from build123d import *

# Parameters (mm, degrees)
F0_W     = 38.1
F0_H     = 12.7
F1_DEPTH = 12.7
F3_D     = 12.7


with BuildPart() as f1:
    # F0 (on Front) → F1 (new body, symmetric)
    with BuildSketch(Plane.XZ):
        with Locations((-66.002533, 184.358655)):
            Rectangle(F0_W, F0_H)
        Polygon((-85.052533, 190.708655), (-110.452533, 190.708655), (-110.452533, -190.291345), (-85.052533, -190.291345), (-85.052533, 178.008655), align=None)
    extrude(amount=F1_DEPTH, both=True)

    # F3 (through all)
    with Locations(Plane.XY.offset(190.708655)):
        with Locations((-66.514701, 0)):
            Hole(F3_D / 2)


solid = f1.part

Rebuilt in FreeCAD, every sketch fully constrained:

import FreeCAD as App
import Part
import Sketcher
Q = App.Units.Quantity

doc = App.newDocument("Part")
body = doc.addObject("PartDesign::Body", "Body")

# Sketch on XZ plane
sketch1 = body.newObject("Sketcher::SketchObject", "Sketch")
sketch1.AttachmentSupport = (doc.getObject("XZ_Plane"), [""])
sketch1.MapMode = "FlatFace"
sketch1.addGeometry(Part.LineSegment(App.Vector(-85.052533, 178.008655, 0), App.Vector(-46.952533, 178.008655, 0)), False)
sketch1.addGeometry(Part.LineSegment(App.Vector(-46.952533, 178.008655, 0), App.Vector(-46.952533, 190.708655, 0)), False)
sketch1.addGeometry(Part.LineSegment(App.Vector(-46.952533, 190.708655, 0), App.Vector(-110.452533, 190.708655, 0)), False)
sketch1.addGeometry(Part.LineSegment(App.Vector(-110.452533, 190.708655, 0), App.Vector(-110.452533, -190.291345, 0)), False)
sketch1.addGeometry(Part.LineSegment(App.Vector(-110.452533, -190.291345, 0), App.Vector(-85.052533, -190.291345, 0)), False)
sketch1.addGeometry(Part.LineSegment(App.Vector(-85.052533, -190.291345, 0), App.Vector(-85.052533, 178.008655, 0)), False)
sketch1.addConstraint(Sketcher.Constraint("Coincident", 0, 2, 1, 1))
sketch1.addConstraint(Sketcher.Constraint("Coincident", 1, 2, 2, 1))
sketch1.addConstraint(Sketcher.Constraint("Coincident", 2, 2, 3, 1))
sketch1.addConstraint(Sketcher.Constraint("Coincident", 3, 2, 4, 1))
sketch1.addConstraint(Sketcher.Constraint("Coincident", 4, 2, 5, 1))
sketch1.addConstraint(Sketcher.Constraint("Coincident", 5, 2, 0, 1))
sketch1.addConstraint(Sketcher.Constraint("Horizontal", 0))
sketch1.addConstraint(Sketcher.Constraint("Vertical", 1))
sketch1.addConstraint(Sketcher.Constraint("Horizontal", 2))
sketch1.addConstraint(Sketcher.Constraint("Vertical", 3))
sketch1.addConstraint(Sketcher.Constraint("Horizontal", 4))
sketch1.addConstraint(Sketcher.Constraint("Vertical", 5))
sketch1.addConstraint(Sketcher.Constraint("DistanceX", 4, 1, 4, 2, Q("1 in")))
sketch1.addConstraint(Sketcher.Constraint("DistanceY", 3, 2, 3, 1, Q("15 in")))
sketch1.addConstraint(Sketcher.Constraint("DistanceX", 0, 1, 0, 2, Q("1.5 in")))
sketch1.addConstraint(Sketcher.Constraint("DistanceY", 1, 1, 1, 2, Q("0.5 in")))
sketch1.addConstraint(Sketcher.Constraint("DistanceX", 0, 2, -1, 1, 46.952533))
sketch1.addConstraint(Sketcher.Constraint("DistanceY", -1, 1, 0, 2, 178.008655))
pad1 = body.newObject("PartDesign::Pad", "Pad")
pad1.Profile = sketch1
pad1.Length = Q("1 in")
pad1.Midplane = True

# Sketch on XY plane
sketch2 = body.newObject("Sketcher::SketchObject", "Sketch001")
sketch2.AttachmentSupport = (doc.getObject("XY_Plane"), [""])
sketch2.MapMode = "FlatFace"
sketch2.AttachmentOffset = App.Placement(App.Vector(0, 0, 190.708655), App.Rotation())
sketch2.addGeometry(Part.Circle(App.Vector(-66.514701, 0, 0), App.Vector(0, 0, 1), 6.35), False)
sketch2.addConstraint(Sketcher.Constraint("PointOnObject", 0, 3, -1))
sketch2.addConstraint(Sketcher.Constraint("Diameter", 0, Q("0.5 in")))
sketch2.addConstraint(Sketcher.Constraint("DistanceX", 0, 3, -1, 1, 66.514701))
doc.recompute()
hole = body.newObject("PartDesign::Hole", "Hole")
hole.Profile = sketch2
hole.ThreadType = "None"
hole.Diameter = Q("0.5 in")
hole.DepthType = "ThroughAll"

doc.recompute()
